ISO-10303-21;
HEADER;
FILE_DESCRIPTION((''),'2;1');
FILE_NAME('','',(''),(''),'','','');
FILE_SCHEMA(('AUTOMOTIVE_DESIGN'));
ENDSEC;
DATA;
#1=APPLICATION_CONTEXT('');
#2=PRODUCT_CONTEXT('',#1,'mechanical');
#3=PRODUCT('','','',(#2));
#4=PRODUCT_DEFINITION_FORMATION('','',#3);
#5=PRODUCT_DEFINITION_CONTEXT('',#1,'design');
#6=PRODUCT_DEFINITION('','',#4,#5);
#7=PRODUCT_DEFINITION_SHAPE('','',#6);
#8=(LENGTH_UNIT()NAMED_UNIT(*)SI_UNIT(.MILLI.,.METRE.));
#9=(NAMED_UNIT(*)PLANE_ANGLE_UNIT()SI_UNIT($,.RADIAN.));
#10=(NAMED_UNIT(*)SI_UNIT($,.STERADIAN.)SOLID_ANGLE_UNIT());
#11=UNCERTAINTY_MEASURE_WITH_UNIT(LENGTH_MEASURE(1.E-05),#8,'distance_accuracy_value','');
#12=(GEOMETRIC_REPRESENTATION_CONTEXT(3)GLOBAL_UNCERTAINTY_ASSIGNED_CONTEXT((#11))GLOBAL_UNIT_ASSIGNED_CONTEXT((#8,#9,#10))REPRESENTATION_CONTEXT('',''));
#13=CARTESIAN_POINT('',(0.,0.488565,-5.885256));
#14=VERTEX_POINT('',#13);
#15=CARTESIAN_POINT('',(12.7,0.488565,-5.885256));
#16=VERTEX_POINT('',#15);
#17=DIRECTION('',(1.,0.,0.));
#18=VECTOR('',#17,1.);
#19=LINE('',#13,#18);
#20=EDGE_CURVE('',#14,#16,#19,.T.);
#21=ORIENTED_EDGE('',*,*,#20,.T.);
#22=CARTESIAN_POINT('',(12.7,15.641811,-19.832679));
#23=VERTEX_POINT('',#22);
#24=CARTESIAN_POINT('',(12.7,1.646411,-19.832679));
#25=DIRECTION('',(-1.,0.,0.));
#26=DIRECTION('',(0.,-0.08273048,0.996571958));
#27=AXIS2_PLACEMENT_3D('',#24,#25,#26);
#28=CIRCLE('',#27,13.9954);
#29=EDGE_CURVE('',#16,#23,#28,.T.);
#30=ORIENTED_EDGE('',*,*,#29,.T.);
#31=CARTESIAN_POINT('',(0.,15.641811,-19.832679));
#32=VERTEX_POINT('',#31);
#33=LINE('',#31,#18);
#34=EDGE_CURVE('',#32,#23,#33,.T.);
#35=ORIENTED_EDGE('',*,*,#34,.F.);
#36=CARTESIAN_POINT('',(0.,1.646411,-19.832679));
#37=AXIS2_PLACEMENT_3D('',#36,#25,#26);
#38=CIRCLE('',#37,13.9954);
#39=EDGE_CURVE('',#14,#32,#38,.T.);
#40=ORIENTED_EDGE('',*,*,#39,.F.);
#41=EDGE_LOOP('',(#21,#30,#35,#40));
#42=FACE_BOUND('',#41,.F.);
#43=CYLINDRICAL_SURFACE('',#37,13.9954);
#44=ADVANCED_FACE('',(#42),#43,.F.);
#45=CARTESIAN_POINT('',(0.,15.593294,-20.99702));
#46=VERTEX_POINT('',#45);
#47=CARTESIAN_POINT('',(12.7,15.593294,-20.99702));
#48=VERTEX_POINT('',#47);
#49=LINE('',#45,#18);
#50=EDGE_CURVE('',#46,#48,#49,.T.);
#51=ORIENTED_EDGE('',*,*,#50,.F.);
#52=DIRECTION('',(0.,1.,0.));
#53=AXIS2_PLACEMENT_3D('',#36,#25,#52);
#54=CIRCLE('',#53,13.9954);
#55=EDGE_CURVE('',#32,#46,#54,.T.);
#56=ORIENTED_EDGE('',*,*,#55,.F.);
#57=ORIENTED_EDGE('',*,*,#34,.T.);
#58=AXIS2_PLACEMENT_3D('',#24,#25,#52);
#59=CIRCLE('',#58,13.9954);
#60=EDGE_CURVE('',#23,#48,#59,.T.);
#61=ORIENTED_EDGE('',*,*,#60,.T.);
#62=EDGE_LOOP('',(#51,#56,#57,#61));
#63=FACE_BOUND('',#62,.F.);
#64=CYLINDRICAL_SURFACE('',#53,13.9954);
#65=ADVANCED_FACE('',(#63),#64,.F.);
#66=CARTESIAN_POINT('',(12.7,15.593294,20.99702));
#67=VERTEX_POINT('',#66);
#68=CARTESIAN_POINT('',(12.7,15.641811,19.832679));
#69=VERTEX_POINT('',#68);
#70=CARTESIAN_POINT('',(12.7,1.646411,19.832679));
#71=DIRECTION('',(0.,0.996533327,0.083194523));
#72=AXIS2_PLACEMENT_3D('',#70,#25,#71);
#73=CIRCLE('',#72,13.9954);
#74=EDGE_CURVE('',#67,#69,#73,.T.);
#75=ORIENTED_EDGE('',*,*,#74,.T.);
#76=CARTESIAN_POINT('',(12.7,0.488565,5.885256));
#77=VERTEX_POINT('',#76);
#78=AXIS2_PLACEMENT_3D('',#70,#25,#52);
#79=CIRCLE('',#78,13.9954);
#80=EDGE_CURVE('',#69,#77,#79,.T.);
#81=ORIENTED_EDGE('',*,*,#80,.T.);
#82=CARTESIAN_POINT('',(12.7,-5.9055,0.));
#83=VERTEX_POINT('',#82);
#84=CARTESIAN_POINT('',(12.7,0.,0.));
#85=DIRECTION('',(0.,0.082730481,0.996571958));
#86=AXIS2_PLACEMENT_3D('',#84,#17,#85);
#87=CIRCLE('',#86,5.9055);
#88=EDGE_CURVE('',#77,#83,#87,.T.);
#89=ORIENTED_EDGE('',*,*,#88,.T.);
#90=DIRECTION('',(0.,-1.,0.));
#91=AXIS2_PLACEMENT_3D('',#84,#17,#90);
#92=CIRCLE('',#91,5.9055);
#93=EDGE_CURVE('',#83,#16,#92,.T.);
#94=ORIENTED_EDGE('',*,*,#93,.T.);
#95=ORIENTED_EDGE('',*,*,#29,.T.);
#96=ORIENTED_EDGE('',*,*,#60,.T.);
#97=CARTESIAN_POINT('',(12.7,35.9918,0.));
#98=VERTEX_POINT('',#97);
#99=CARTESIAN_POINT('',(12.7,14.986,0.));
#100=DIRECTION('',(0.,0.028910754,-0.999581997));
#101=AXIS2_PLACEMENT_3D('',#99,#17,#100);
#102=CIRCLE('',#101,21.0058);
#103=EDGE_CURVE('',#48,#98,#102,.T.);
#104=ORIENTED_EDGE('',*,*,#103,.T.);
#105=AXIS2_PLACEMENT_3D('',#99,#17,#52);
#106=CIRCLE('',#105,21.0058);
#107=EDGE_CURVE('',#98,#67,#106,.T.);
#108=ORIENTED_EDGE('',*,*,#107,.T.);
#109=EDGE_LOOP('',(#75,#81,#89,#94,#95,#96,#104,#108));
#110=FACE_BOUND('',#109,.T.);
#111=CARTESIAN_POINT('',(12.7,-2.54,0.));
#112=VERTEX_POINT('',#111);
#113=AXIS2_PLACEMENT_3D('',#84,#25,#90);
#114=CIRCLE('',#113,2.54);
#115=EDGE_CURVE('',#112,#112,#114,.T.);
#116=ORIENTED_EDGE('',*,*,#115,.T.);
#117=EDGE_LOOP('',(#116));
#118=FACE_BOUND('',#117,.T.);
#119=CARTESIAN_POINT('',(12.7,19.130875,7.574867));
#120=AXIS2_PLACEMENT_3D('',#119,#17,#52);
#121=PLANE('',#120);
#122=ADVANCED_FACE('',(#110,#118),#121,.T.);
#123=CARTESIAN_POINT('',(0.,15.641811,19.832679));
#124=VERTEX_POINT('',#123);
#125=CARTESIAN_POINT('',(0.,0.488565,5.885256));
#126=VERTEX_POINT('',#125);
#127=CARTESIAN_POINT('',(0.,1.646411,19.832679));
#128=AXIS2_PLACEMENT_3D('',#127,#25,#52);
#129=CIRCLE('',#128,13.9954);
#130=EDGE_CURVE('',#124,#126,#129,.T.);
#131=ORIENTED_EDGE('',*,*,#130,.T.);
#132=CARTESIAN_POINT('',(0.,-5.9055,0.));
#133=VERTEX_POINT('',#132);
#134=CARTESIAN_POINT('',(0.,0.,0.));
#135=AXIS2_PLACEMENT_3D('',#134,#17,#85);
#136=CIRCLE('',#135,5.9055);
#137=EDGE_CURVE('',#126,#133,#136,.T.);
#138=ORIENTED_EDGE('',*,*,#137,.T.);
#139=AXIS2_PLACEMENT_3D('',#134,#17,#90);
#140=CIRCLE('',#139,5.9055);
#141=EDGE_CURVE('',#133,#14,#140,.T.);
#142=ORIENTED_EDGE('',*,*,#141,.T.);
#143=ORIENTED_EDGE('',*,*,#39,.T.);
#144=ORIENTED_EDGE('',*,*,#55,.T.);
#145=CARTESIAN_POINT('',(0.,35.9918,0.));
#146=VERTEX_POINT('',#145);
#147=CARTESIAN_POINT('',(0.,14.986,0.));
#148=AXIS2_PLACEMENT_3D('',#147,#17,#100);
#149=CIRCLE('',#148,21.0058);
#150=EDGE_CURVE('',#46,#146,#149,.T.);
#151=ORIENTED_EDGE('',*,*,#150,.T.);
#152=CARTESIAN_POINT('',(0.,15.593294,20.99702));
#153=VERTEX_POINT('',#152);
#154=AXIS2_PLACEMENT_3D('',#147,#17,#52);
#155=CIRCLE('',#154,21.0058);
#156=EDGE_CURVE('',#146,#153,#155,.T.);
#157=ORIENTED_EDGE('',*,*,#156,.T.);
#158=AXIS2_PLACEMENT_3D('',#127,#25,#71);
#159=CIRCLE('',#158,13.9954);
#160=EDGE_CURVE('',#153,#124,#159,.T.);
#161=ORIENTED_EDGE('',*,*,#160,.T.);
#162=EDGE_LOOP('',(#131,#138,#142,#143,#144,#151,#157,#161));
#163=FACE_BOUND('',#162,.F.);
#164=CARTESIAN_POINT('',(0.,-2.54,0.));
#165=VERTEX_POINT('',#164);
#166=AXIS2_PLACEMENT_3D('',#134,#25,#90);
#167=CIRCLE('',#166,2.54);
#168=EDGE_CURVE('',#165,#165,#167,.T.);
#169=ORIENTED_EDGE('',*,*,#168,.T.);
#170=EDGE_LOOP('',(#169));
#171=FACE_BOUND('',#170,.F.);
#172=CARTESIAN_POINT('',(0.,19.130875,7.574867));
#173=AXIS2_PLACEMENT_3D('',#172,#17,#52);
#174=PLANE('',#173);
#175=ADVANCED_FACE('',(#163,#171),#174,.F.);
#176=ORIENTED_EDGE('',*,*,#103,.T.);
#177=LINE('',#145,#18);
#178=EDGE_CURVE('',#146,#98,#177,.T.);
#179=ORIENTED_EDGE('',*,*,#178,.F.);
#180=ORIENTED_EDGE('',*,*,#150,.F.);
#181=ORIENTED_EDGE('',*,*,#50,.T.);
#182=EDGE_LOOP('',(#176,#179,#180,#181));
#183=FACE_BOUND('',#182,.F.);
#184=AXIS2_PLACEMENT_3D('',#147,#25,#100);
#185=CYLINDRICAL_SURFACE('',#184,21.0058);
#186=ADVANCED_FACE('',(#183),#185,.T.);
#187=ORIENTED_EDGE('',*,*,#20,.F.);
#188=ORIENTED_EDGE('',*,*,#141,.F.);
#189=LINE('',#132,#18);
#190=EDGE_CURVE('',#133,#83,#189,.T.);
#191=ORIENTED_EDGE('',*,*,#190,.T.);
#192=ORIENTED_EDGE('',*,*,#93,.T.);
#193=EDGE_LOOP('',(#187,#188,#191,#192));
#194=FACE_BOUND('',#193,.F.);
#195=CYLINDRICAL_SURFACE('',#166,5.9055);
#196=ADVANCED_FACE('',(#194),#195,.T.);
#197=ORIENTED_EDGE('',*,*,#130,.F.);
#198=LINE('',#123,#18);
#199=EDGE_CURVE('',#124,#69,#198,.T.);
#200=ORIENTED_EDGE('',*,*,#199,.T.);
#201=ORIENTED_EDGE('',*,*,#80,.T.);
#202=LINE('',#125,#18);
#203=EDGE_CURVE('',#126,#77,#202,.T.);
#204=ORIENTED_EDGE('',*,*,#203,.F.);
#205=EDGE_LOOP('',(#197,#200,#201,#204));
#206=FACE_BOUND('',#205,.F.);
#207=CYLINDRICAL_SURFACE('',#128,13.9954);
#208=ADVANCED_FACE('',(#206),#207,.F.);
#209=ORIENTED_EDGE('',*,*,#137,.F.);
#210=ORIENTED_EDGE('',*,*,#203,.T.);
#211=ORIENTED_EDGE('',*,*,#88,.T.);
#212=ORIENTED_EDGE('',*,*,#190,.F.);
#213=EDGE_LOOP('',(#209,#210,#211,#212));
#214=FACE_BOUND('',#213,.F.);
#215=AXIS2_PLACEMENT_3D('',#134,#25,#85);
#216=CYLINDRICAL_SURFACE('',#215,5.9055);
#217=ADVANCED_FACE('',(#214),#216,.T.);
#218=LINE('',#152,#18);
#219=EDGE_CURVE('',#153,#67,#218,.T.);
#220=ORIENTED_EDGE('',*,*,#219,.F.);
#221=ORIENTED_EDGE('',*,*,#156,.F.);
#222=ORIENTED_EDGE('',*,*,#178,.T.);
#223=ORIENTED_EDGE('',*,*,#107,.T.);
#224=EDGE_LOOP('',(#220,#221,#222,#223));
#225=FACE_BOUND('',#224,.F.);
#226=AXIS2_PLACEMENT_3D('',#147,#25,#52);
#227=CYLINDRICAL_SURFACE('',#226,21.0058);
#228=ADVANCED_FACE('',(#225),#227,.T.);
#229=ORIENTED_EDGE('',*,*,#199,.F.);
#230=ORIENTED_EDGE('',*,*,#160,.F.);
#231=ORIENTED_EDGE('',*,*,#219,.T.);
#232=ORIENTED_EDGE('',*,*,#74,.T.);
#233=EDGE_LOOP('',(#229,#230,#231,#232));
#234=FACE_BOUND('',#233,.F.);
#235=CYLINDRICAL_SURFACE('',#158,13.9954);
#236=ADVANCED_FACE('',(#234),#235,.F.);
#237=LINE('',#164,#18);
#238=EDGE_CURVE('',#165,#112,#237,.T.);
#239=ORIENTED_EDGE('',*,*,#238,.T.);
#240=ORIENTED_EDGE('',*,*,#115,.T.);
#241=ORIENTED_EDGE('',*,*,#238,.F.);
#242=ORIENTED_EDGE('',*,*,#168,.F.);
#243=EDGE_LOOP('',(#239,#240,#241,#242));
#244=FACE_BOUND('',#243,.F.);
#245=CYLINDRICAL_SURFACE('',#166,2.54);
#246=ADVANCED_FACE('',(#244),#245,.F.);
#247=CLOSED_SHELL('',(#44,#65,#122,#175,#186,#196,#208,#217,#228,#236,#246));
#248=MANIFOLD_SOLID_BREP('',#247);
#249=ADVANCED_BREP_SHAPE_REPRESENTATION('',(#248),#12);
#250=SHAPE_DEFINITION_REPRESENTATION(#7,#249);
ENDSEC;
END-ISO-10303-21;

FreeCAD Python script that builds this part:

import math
import FreeCAD as App
import Part
import Sketcher

V = App.Vector
Q = App.Units.Quantity

doc = App.newDocument("Part")
body = doc.addObject("PartDesign::Body", "Body")

sketch1 = doc.addObject("Sketcher::SketchObject", "Sketch")
body.addObject(sketch1)
sketch1.AttachmentSupport = (doc.YZ_Plane, [""])
sketch1.MapMode = "FlatFace"
sketch1.addGeometry([
    Part.ArcOfCircle(Part.Circle(V(0, 0, 0), V(0, 0, 1), 5.9055), math.radians(180), math.radians(274.745531)),
    Part.ArcOfCircle(Part.Circle(V(1.646411, -19.832679, 0), V(0, 0, 1), 13.9954), math.radians(0), math.radians(94.745531)),
    Part.ArcOfCircle(Part.Circle(V(1.646411, -19.832679, 0), V(0, 0, 1), 13.9954), math.radians(-4.772211), math.radians(0)),
    Part.ArcOfCircle(Part.Circle(V(14.986, 0, 0), V(0, 0, 1), 21.0058), math.radians(-88.343305), math.radians(0)),
    Part.ArcOfCircle(Part.Circle(V(14.986, 0, 0), V(0, 0, 1), 21.0058), math.radians(0), math.radians(88.343305)),
    Part.ArcOfCircle(Part.Circle(V(1.646411, 19.832679, 0), V(0, 0, 1), 13.9954), math.radians(0), math.radians(4.772211)),
    Part.ArcOfCircle(Part.Circle(V(1.646411, 19.832679, 0), V(0, 0, 1), 13.9954), math.radians(-94.745531), math.radians(0)),
    Part.ArcOfCircle(Part.Circle(V(0, 0, 0), V(0, 0, 1), 5.9055), math.radians(85.254469), math.radians(180)),
    Part.Circle(V(0, 0, 0), V(0, 0, 1), 2.54),
], False)
sketch1.addConstraint([
    Sketcher.Constraint("Tangent", 0, 2, 1, 2),
    Sketcher.Constraint("Tangent", 1, 1, 2, 2),
    Sketcher.Constraint("Coincident", 2, 1, 3, 1),
    Sketcher.Constraint("Tangent", 3, 2, 4, 1),
    Sketcher.Constraint("Coincident", 4, 2, 5, 2),
    Sketcher.Constraint("Tangent", 5, 1, 6, 2),
    Sketcher.Constraint("Tangent", 6, 1, 7, 1),
    Sketcher.Constraint("Tangent", 7, 2, 0, 1),
    Sketcher.Constraint("Coincident", 0, 3, -1, 1),
    Sketcher.Constraint("Coincident", 8, 3, -1, 1),
    Sketcher.Constraint("Equal", 1, 2),
    Sketcher.Constraint("Equal", 3, 4),
    Sketcher.Constraint("Equal", 2, 5),
    Sketcher.Constraint("Equal", 5, 6),
    Sketcher.Constraint("Equal", 0, 7),
    Sketcher.Constraint("Symmetric", 2, 1, 4, 2, -1),
    Sketcher.Constraint("PointOnObject", 3, 2, -1),
    Sketcher.Constraint("PointOnObject", 7, 2, -1),
    Sketcher.Constraint("Horizontal", 2, 3, 1, 1),
    Sketcher.Constraint("Horizontal", 6, 3, 5, 1),
    Sketcher.Constraint("Diameter", 8, Q("0.2 in")),
    Sketcher.Constraint("Radius", 1, Q("0.551 in")),
    Sketcher.Constraint("Radius", 3, Q("0.827 in")),
    Sketcher.Constraint("Radius", 0, Q("0.2325 in")),
    Sketcher.Constraint("DistanceX", -1, 1, 3, 3, Q("0.59 in")),
    Sketcher.Constraint("DistanceX", -1, 1, 1, 3, 1.646411),
])
pad1 = doc.addObject("PartDesign::Pad", "Pad")
body.addObject(pad1)
pad1.Profile = sketch1
pad1.Length = Q("0.5 in")

doc.recompute()
